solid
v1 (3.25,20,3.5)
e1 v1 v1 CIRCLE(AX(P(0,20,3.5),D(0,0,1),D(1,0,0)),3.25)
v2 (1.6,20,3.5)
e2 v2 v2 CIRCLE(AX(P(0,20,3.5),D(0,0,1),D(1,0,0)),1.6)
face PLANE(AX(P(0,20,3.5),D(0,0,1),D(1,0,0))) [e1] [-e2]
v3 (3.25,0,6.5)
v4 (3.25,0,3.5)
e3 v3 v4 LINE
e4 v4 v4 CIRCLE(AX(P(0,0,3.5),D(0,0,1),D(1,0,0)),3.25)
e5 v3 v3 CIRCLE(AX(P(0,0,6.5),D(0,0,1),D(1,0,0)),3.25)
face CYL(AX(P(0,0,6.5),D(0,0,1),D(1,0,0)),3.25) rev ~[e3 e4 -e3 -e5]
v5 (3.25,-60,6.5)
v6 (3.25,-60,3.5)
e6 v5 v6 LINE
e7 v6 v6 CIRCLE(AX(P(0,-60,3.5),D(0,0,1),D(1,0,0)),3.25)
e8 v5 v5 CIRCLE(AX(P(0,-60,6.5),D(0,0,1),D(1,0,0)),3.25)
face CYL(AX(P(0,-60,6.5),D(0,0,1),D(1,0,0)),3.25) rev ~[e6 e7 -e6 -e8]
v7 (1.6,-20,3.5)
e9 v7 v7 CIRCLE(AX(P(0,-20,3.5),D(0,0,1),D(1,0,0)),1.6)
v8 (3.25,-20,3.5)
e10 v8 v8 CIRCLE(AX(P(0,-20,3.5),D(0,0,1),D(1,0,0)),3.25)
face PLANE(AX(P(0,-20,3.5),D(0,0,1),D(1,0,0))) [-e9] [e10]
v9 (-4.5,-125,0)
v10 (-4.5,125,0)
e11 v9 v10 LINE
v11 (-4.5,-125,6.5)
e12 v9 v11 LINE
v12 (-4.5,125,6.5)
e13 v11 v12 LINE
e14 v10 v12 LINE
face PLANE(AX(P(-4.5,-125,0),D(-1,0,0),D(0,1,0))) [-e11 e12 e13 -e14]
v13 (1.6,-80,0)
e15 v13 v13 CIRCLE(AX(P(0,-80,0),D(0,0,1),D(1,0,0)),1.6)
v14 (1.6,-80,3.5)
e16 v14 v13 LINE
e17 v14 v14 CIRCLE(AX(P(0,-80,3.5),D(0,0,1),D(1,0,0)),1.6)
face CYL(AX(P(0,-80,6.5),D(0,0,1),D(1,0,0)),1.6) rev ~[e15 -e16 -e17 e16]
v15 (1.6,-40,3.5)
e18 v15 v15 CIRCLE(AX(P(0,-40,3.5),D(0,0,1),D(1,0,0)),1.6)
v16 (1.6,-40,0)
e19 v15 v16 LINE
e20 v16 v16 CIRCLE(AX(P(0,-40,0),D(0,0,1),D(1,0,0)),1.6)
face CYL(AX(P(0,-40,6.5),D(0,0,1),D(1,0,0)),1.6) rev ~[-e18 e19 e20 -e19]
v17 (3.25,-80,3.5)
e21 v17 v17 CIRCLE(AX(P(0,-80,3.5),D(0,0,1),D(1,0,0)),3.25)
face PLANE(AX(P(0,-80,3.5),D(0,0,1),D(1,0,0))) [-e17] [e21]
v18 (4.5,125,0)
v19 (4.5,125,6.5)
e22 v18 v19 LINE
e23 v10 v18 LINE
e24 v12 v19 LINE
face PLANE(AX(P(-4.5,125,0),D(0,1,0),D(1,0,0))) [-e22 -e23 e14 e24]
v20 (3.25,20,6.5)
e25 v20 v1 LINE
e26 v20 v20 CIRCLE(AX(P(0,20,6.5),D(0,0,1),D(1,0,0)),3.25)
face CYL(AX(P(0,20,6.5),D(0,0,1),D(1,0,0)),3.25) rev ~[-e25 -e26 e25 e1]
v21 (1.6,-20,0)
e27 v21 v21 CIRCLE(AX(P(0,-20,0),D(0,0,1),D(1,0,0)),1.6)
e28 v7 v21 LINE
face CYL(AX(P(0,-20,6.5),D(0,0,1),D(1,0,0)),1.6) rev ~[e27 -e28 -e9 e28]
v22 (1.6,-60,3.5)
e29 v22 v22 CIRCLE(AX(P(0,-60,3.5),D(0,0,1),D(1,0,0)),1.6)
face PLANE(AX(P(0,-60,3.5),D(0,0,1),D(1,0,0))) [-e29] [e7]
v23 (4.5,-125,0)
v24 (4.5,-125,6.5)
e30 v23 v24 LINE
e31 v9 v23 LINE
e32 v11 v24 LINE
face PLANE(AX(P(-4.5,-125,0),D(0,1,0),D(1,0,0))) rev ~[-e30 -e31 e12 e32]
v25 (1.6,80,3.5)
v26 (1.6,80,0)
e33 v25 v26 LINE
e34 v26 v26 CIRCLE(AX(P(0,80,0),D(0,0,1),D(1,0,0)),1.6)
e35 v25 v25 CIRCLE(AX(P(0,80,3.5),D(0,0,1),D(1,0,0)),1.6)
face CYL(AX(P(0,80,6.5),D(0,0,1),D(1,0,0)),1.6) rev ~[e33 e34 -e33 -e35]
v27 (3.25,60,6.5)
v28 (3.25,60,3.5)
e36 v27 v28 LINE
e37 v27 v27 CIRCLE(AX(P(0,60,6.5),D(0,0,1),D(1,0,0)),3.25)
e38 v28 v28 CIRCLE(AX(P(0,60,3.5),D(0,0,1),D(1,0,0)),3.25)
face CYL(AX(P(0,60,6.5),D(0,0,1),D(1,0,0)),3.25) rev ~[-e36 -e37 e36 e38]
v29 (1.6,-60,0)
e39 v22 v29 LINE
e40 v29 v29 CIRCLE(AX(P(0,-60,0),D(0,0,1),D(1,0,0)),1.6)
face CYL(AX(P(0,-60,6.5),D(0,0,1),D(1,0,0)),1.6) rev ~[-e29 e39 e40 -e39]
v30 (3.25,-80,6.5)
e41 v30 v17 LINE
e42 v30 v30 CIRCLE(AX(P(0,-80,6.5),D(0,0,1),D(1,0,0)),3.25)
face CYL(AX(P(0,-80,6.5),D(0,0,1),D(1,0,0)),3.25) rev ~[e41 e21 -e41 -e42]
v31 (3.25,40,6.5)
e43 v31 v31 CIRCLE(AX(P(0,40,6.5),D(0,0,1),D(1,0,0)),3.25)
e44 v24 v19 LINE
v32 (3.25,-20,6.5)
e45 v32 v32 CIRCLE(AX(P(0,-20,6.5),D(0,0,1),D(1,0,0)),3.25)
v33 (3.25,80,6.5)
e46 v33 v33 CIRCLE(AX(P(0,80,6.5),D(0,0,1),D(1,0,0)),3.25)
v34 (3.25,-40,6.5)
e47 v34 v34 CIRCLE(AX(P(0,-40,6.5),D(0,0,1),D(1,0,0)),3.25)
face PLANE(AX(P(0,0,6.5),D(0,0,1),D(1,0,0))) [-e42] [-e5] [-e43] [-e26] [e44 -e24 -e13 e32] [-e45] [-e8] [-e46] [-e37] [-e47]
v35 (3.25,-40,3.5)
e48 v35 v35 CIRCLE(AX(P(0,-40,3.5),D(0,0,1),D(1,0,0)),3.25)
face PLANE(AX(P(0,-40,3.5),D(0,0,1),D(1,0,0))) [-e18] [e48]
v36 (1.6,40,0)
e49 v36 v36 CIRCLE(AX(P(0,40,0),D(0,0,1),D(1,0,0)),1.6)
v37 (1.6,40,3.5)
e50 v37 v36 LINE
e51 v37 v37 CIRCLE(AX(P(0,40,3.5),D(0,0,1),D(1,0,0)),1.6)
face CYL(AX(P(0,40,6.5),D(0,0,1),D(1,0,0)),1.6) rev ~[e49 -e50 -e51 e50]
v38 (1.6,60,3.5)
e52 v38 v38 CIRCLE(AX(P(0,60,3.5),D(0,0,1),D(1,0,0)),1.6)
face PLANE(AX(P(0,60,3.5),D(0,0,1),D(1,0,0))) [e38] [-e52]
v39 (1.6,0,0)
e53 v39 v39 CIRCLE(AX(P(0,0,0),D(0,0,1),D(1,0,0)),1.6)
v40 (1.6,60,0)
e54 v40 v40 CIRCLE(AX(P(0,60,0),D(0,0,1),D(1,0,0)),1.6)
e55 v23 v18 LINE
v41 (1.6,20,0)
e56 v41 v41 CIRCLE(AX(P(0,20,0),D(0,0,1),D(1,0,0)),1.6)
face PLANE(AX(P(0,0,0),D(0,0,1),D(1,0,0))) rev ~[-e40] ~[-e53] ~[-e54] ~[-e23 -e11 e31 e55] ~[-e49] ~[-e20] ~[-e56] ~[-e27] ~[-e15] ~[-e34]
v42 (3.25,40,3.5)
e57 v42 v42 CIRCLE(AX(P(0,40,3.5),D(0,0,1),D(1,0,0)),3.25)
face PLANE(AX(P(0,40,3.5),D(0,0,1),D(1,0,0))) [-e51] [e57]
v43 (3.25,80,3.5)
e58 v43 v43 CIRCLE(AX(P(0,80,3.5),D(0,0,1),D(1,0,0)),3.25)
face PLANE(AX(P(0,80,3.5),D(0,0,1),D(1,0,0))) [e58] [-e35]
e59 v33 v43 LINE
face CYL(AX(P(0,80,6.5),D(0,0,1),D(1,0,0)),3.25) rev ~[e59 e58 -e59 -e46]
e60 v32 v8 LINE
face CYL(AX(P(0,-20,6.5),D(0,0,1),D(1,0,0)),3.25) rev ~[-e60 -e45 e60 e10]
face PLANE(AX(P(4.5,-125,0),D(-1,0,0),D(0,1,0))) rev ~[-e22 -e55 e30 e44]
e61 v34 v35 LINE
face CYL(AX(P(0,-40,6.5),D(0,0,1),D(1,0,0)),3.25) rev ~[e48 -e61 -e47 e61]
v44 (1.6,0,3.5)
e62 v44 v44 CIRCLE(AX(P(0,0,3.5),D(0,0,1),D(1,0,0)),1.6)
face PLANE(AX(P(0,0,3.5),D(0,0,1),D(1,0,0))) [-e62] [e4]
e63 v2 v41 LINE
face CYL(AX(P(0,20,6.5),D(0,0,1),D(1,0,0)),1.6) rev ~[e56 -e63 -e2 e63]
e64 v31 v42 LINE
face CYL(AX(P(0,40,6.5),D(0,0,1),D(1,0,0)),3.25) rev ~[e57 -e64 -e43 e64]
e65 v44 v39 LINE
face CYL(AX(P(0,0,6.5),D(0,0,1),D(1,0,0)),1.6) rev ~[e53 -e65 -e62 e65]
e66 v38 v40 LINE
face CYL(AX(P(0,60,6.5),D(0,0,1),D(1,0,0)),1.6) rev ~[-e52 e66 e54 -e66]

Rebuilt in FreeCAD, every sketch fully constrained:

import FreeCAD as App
import Part
import Sketcher


def add_polygon(sketch, points):
    """Adds a closed chain of lines whose ends are joined by coincident constraints."""
    first, n = sketch.GeometryCount, len(points)
    for a, b in zip(points, points[1:] + points[:1]):
        sketch.addGeometry(Part.LineSegment(App.Vector(*a, 0), App.Vector(*b, 0)), False)
    for i in range(n):
        sketch.addConstraint(Sketcher.Constraint("Coincident", first + i, 2, first + (i + 1) % n, 1))

doc = App.newDocument("Part")
params = doc.addObject("Spreadsheet::Sheet", "Params")
for row, (alias, value) in enumerate([
    ("sketch1_width", "9 mm"),
    ("sketch1_height", "250 mm"),
    ("pad1_length", "6.5 mm"),
    ("sketch2_diameter", "3.2 mm"),
    ("sketch3_diameter", "6.5 mm"),
    ("pocket2_length", "3 mm"),
], start=1):
    params.set(f"A{row}", alias)
    params.set(f"B{row}", "=" + value)
    params.setAlias(f"B{row}", alias)

body = doc.addObject("PartDesign::Body", "Body")

# Sketch on XY plane
sketch1 = doc.addObject("Sketcher::SketchObject", "Sketch")
body.addObject(sketch1)
sketch1.AttachmentSupport = (doc.XY_Plane, [""])
sketch1.MapMode = "FlatFace"
add_polygon(sketch1, [(-4, 125), (-4, -125), (4, -125), (4, 125)])  # lines 0-3
sketch1.addConstraint([
    Sketcher.Constraint("Vertical", 0),
    Sketcher.Constraint("Horizontal", 1),
    Sketcher.Constraint("Vertical", 2),
    Sketcher.Constraint("Horizontal", 3),
    Sketcher.Constraint("Symmetric", 0, 2, 2, 2, -1, 1),
    Sketcher.Constraint("DistanceX", 1, 1, 1, 2, 9.0),
    Sketcher.Constraint("DistanceY", 0, 2, 0, 1, 250.0),
])
sketch1.setExpression("Constraints[9]", "Params.sketch1_width")
sketch1.setExpression("Constraints[10]", "Params.sketch1_height")
pad1 = doc.addObject("PartDesign::Pad", "Pad")
body.addObject(pad1)
pad1.Profile = sketch1
pad1.setExpression("Length", "Params.pad1_length")

# Sketch on XY plane
sketch2 = doc.addObject("Sketcher::SketchObject", "Sketch001")
body.addObject(sketch2)
sketch2.AttachmentSupport = (doc.XY_Plane, [""])
sketch2.MapMode = "FlatFace"
sketch2.AttachmentOffset = App.Placement(App.Vector(0, 0, 6.5), App.Rotation())
sketch2.addGeometry([
    Part.Circle(App.Vector(0, 0, 0), App.Vector(0, 0, 1), 1.6),  # 0
    Part.Circle(App.Vector(0, 20, 0), App.Vector(0, 0, 1), 1.6),  # 1
    Part.Circle(App.Vector(0, 40, 0), App.Vector(0, 0, 1), 1.6),  # 2
    Part.Circle(App.Vector(0, 60, 0), App.Vector(0, 0, 1), 1.6),  # 3
    Part.Circle(App.Vector(0, 80, 0), App.Vector(0, 0, 1), 1.6),  # 4
    Part.Circle(App.Vector(0, -20, 0), App.Vector(0, 0, 1), 1.6),  # 5
    Part.Circle(App.Vector(0, -40, 0), App.Vector(0, 0, 1), 1.6),  # 6
    Part.Circle(App.Vector(0, -60, 0), App.Vector(0, 0, 1), 1.6),  # 7
    Part.Circle(App.Vector(0, -80, 0), App.Vector(0, 0, 1), 1.6),  # 8
], False)
sketch2.addConstraint([
    Sketcher.Constraint("Coincident", 0, 3, -1, 1),
    Sketcher.Constraint("Equal", 0, 1),
    Sketcher.Constraint("Equal", 1, 2),
    Sketcher.Constraint("Equal", 2, 3),
    Sketcher.Constraint("Equal", 3, 4),
    Sketcher.Constraint("Equal", 4, 5),
    Sketcher.Constraint("Equal", 5, 6),
    Sketcher.Constraint("Equal", 6, 7),
    Sketcher.Constraint("Equal", 7, 8),
    Sketcher.Constraint("Symmetric", 1, 3, 5, 3, -1, 1),
    Sketcher.Constraint("Symmetric", 2, 3, 6, 3, -1, 1),
    Sketcher.Constraint("Symmetric", 3, 3, 7, 3, -1, 1),
    Sketcher.Constraint("Symmetric", 4, 3, 8, 3, -1, 1),
    Sketcher.Constraint("PointOnObject", 1, 3, -2),
    Sketcher.Constraint("PointOnObject", 2, 3, -2),
    Sketcher.Constraint("PointOnObject", 3, 3, -2),
    Sketcher.Constraint("PointOnObject", 4, 3, -2),
    Sketcher.Constraint("Diameter", 0, 3.2),
    Sketcher.Constraint("DistanceY", -1, 1, 1, 3, 20.0),
    Sketcher.Constraint("DistanceY", -1, 1, 2, 3, 40.0),
    Sketcher.Constraint("DistanceY", -1, 1, 3, 3, 60.0),
    Sketcher.Constraint("DistanceY", -1, 1, 4, 3, 80.0),
])
sketch2.setExpression("Constraints[17]", "Params.sketch2_diameter")
pocket1 = doc.addObject("PartDesign::Pocket", "Pocket")
body.addObject(pocket1)
pocket1.Profile = sketch2
pocket1.Type = "ThroughAll"

# Sketch on XY plane
sketch3 = doc.addObject("Sketcher::SketchObject", "Sketch002")
body.addObject(sketch3)
sketch3.AttachmentSupport = (doc.XY_Plane, [""])
sketch3.MapMode = "FlatFace"
sketch3.AttachmentOffset = App.Placement(App.Vector(0, 0, 6.5), App.Rotation())
sketch3.addGeometry([
    Part.Circle(App.Vector(0, 80, 0), App.Vector(0, 0, 1), 3.2),  # 0
    Part.Circle(App.Vector(0, 60, 0), App.Vector(0, 0, 1), 3.2),  # 1
    Part.Circle(App.Vector(0, 40, 0), App.Vector(0, 0, 1), 3.2),  # 2
    Part.Circle(App.Vector(0, 20, 0), App.Vector(0, 0, 1), 3.2),  # 3
    Part.Circle(App.Vector(0, 0, 0), App.Vector(0, 0, 1), 3.2),  # 4
    Part.Circle(App.Vector(0, -20, 0), App.Vector(0, 0, 1), 3.2),  # 5
    Part.Circle(App.Vector(0, -40, 0), App.Vector(0, 0, 1), 3.2),  # 6
    Part.Circle(App.Vector(0, -60, 0), App.Vector(0, 0, 1), 3.2),  # 7
    Part.Circle(App.Vector(0, -80, 0), App.Vector(0, 0, 1), 3.2),  # 8
], False)
sketch3.addConstraint([
    Sketcher.Constraint("Coincident", 4, 3, -1, 1),
    Sketcher.Constraint("Equal", 0, 1),
    Sketcher.Constraint("Equal", 1, 2),
    Sketcher.Constraint("Equal", 2, 3),
    Sketcher.Constraint("Equal", 3, 4),
    Sketcher.Constraint("Equal", 4, 5),
    Sketcher.Constraint("Equal", 5, 6),
    Sketcher.Constraint("Equal", 6, 7),
    Sketcher.Constraint("Equal", 7, 8),
    Sketcher.Constraint("Symmetric", 3, 3, 5, 3, -1, 1),
    Sketcher.Constraint("Symmetric", 2, 3, 6, 3, -1, 1),
    Sketcher.Constraint("Symmetric", 1, 3, 7, 3, -1, 1),
    Sketcher.Constraint("Symmetric", 0, 3, 8, 3, -1, 1),
    Sketcher.Constraint("PointOnObject", 0, 3, -2),
    Sketcher.Constraint("PointOnObject", 1, 3, -2),
    Sketcher.Constraint("PointOnObject", 2, 3, -2),
    Sketcher.Constraint("PointOnObject", 3, 3, -2),
    Sketcher.Constraint("Diameter", 0, 6.5),
    Sketcher.Constraint("DistanceY", -1, 1, 0, 3, 80.0),
    Sketcher.Constraint("DistanceY", -1, 1, 1, 3, 60.0),
    Sketcher.Constraint("DistanceY", -1, 1, 2, 3, 40.0),
    Sketcher.Constraint("DistanceY", -1, 1, 3, 3, 20.0),
])
sketch3.setExpression("Constraints[17]", "Params.sketch3_diameter")
pocket2 = doc.addObject("PartDesign::Pocket", "Pocket001")
body.addObject(pocket2)
pocket2.Profile = sketch3
pocket2.setExpression("Length", "Params.pocket2_length")

doc.recompute()
